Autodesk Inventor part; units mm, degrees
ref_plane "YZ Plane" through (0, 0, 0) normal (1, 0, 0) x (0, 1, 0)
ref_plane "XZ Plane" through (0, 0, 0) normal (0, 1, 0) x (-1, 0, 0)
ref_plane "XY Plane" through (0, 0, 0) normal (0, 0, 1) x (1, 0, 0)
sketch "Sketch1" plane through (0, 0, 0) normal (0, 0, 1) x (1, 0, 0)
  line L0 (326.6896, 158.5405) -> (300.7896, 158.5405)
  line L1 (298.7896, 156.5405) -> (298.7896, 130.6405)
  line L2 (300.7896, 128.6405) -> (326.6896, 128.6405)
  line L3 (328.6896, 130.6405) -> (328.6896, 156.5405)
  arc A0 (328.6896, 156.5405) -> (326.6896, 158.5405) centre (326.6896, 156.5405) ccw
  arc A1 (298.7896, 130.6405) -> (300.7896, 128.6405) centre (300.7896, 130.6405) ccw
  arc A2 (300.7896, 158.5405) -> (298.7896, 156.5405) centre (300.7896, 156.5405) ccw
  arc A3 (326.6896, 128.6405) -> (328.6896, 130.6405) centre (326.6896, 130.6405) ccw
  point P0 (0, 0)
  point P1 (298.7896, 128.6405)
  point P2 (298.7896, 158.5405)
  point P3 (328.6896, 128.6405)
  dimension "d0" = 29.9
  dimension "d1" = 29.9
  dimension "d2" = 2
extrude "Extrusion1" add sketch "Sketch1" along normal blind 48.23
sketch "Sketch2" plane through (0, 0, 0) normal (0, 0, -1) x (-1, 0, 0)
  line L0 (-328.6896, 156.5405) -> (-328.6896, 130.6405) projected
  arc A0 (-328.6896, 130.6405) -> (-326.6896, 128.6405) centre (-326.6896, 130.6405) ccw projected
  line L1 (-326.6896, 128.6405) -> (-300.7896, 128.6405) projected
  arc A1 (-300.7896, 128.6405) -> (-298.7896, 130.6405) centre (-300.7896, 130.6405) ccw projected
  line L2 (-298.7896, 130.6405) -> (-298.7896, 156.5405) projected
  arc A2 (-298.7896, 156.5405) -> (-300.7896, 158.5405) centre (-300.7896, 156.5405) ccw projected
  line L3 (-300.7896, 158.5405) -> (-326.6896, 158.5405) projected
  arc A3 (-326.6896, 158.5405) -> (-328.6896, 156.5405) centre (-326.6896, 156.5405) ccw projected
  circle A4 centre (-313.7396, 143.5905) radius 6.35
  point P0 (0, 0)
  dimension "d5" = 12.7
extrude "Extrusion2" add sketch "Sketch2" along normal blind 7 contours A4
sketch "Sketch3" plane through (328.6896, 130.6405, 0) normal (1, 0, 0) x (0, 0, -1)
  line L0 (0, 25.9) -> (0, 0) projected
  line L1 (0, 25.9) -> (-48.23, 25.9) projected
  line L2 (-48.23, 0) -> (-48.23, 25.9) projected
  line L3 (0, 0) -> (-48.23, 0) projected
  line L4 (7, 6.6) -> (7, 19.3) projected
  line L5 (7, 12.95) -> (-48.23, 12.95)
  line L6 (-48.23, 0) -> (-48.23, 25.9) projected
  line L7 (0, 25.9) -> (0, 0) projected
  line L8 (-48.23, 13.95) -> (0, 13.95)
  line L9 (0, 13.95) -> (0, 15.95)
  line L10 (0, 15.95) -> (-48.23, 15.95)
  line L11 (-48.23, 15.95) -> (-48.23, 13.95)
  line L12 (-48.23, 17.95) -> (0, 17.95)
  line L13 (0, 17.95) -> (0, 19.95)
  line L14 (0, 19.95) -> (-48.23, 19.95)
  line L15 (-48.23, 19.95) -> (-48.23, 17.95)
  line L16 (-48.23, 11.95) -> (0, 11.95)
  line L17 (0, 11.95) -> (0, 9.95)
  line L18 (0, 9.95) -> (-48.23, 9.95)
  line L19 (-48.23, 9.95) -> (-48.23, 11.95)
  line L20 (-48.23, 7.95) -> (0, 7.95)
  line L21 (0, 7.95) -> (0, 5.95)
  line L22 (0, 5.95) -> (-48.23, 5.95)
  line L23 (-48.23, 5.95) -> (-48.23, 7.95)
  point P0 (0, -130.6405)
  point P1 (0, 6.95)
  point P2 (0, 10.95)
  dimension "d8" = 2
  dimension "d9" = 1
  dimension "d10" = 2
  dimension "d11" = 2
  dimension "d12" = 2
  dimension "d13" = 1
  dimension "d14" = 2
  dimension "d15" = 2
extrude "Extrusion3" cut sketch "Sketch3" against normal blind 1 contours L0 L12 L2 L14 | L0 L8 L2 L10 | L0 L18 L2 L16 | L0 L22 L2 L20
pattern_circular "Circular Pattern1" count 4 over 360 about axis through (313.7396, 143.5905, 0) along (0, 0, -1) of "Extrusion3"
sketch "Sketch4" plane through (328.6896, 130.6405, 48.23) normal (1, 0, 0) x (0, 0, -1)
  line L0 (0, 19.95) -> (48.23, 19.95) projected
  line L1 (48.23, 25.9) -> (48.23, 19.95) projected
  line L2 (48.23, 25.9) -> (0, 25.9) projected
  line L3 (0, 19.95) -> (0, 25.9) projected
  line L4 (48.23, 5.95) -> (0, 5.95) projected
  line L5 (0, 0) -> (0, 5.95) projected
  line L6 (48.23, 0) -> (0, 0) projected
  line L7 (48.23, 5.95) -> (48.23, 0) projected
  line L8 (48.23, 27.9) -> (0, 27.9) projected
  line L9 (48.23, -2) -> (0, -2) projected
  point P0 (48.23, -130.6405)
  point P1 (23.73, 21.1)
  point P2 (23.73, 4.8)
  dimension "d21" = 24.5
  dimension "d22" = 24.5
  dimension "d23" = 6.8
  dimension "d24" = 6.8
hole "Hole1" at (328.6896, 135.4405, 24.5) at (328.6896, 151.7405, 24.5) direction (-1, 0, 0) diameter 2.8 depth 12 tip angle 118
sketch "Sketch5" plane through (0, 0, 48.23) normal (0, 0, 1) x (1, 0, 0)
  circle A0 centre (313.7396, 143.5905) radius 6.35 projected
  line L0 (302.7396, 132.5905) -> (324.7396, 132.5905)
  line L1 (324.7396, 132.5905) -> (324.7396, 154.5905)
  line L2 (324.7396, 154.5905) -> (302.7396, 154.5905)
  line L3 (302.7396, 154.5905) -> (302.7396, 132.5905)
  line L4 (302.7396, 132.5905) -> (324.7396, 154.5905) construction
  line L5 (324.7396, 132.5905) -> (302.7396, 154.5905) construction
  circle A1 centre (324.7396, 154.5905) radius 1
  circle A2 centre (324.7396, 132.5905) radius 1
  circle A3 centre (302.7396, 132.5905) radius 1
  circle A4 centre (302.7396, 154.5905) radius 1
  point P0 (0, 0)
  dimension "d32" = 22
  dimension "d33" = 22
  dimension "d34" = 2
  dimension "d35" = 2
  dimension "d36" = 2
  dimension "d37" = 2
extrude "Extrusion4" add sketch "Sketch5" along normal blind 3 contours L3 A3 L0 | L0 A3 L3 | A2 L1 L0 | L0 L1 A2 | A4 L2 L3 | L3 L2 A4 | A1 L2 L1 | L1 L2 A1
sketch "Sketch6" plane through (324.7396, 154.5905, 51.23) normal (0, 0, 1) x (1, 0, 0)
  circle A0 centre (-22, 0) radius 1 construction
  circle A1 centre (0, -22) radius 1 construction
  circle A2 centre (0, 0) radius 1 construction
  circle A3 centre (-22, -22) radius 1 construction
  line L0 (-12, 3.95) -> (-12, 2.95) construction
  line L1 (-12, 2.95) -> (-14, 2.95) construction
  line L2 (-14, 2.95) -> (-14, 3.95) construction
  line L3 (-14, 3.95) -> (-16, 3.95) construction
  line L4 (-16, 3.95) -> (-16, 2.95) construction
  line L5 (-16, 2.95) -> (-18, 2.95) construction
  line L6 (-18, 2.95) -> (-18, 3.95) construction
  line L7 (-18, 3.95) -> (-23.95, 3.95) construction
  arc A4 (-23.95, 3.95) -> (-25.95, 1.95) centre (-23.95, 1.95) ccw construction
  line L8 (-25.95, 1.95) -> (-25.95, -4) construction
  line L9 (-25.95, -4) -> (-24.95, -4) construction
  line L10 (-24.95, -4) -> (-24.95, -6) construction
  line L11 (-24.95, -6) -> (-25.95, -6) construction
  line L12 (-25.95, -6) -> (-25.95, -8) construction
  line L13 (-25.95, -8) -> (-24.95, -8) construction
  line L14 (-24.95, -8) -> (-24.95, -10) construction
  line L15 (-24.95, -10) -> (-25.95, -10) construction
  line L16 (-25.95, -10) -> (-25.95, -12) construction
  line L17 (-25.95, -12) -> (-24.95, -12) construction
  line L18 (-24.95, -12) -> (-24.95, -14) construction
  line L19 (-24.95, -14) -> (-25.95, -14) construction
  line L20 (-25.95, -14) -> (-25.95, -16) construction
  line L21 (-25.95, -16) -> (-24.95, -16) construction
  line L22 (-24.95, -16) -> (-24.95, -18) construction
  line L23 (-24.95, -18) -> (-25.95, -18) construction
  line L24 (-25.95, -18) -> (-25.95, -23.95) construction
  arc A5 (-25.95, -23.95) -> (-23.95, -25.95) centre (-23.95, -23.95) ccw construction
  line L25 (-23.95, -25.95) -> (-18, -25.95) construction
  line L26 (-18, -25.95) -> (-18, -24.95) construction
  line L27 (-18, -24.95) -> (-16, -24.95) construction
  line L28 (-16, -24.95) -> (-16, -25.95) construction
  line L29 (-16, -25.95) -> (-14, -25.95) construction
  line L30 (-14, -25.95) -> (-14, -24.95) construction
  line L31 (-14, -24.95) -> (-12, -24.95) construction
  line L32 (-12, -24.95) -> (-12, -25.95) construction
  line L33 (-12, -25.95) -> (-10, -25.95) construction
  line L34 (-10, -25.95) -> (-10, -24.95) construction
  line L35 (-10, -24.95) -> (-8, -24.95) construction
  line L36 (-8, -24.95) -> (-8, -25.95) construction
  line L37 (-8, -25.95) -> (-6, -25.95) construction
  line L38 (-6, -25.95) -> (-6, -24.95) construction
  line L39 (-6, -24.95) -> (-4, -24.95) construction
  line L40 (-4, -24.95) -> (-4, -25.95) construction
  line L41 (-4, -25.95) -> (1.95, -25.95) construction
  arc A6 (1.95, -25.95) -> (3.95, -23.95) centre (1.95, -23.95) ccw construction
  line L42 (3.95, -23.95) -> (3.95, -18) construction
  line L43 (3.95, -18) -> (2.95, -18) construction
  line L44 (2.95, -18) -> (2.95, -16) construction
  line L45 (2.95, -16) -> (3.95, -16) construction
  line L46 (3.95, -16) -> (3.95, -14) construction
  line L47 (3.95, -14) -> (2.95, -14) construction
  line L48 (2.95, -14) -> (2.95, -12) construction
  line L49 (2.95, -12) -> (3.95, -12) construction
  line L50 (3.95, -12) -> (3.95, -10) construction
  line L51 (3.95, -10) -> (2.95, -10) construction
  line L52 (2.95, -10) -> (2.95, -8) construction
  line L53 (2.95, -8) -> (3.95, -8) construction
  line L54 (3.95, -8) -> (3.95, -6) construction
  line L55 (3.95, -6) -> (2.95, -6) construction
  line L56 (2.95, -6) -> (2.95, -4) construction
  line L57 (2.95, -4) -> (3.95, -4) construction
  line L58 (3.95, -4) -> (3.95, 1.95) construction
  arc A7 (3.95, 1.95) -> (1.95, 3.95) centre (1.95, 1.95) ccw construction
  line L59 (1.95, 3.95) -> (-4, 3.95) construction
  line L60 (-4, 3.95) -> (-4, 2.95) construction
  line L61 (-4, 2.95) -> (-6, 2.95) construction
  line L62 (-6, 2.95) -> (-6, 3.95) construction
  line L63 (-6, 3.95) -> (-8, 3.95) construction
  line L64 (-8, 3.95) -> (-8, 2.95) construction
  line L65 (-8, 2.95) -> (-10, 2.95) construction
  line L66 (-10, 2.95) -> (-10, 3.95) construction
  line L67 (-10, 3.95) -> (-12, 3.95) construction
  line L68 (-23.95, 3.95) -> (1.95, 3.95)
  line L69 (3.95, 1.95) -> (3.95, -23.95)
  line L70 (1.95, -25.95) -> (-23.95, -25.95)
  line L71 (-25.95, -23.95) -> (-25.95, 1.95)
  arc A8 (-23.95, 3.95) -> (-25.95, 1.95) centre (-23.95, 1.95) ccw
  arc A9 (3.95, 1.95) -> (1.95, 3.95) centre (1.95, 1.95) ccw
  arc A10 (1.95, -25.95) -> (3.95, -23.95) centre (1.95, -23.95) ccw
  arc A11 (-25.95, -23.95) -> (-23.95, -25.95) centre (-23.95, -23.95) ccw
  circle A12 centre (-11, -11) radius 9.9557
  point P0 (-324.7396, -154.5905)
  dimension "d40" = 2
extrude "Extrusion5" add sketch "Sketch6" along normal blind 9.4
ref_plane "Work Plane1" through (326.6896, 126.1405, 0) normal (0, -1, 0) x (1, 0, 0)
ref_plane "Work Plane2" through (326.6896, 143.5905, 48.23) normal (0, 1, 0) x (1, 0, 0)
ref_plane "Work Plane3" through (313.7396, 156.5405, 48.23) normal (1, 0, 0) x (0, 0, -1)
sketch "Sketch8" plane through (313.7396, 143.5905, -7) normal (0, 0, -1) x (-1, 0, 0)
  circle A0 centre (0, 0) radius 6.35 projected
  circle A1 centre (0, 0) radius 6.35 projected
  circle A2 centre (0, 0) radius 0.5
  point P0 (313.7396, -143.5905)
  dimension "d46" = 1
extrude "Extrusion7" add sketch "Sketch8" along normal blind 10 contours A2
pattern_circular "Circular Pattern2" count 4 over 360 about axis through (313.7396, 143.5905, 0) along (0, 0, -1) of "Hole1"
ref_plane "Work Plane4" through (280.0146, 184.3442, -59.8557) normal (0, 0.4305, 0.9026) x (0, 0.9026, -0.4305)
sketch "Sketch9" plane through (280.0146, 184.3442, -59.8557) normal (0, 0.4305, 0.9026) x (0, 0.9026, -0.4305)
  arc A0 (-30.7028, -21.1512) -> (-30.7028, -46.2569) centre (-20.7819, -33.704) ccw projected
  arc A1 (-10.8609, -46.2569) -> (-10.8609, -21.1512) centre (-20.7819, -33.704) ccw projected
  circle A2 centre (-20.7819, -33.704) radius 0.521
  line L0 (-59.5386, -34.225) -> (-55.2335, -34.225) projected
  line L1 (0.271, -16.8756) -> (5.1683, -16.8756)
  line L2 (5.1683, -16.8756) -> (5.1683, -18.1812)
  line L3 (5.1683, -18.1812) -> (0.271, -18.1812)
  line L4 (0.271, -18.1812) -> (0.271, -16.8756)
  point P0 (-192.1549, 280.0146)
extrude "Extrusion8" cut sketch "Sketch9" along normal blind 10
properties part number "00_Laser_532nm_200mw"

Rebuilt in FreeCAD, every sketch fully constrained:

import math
import FreeCAD as App
import Part
import Sketcher

V = App.Vector
Q = App.Units.Quantity

doc = App.newDocument("Part")
body = doc.addObject("PartDesign::Body", "Body")

sketch1 = body.newObject("Sketcher::SketchObject", "Sketch")
sketch1.AttachmentSupport = (doc.getObject("XY_Plane"), [""])
sketch1.MapMode = "FlatFace"
sketch1.addGeometry(Part.ArcOfCircle(Part.Circle(V(326.7, 156.5, 0), V(0, 0, 1), 2), math.radians(0), math.radians(90)), False)
sketch1.addGeometry(Part.LineSegment(V(326.7, 158.5, 0), V(300.8, 158.5, 0)), False)
sketch1.addGeometry(Part.ArcOfCircle(Part.Circle(V(300.8, 156.5, 0), V(0, 0, 1), 2), math.radians(90), math.radians(180)), False)
sketch1.addGeometry(Part.LineSegment(V(298.8, 156.5, 0), V(298.8, 130.6, 0)), False)
sketch1.addGeometry(Part.ArcOfCircle(Part.Circle(V(300.8, 130.6, 0), V(0, 0, 1), 2), math.radians(180), math.radians(270)), False)
sketch1.addGeometry(Part.LineSegment(V(300.8, 128.6, 0), V(326.7, 128.6, 0)), False)
sketch1.addGeometry(Part.ArcOfCircle(Part.Circle(V(326.7, 130.6, 0), V(0, 0, 1), 2), math.radians(-90), math.radians(0)), False)
sketch1.addGeometry(Part.LineSegment(V(328.7, 130.6, 0), V(328.7, 156.5, 0)), False)
sketch1.addConstraint(Sketcher.Constraint("Tangent", 0, 2, 1, 1))
sketch1.addConstraint(Sketcher.Constraint("Tangent", 1, 2, 2, 1))
sketch1.addConstraint(Sketcher.Constraint("Tangent", 2, 2, 3, 1))
sketch1.addConstraint(Sketcher.Constraint("Tangent", 3, 2, 4, 1))
sketch1.addConstraint(Sketcher.Constraint("Tangent", 4, 2, 5, 1))
sketch1.addConstraint(Sketcher.Constraint("Tangent", 5, 2, 6, 1))
sketch1.addConstraint(Sketcher.Constraint("Tangent", 6, 2, 7, 1))
sketch1.addConstraint(Sketcher.Constraint("Tangent", 7, 2, 0, 1))
sketch1.addConstraint(Sketcher.Constraint("Horizontal", 1))
sketch1.addConstraint(Sketcher.Constraint("Vertical", 3))
sketch1.addConstraint(Sketcher.Constraint("Horizontal", 5))
sketch1.addConstraint(Sketcher.Constraint("Vertical", 7))
sketch1.addConstraint(Sketcher.Constraint("Equal", 0, 2))
sketch1.addConstraint(Sketcher.Constraint("Equal", 2, 4))
sketch1.addConstraint(Sketcher.Constraint("Equal", 4, 6))
sketch1.addConstraint(Sketcher.Constraint("Equal", 5, 3))
sketch1.addConstraint(Sketcher.Constraint("Radius", 0, Q("2 mm")))
sketch1.addConstraint(Sketcher.Constraint("DistanceX", 1, 2, 1, 1, Q("25.9 mm")))
sketch1.addConstraint(Sketcher.Constraint("DistanceX", -1, 1, 0, 3, Q("326.6896 mm")))
sketch1.addConstraint(Sketcher.Constraint("DistanceY", -1, 1, 0, 3, Q("156.5405 mm")))
pad1 = body.newObject("PartDesign::Pad", "Pad")
pad1.Profile = sketch1
pad1.Length = 48.23

sketch2 = body.newObject("Sketcher::SketchObject", "Sketch001")
sketch2.AttachmentSupport = (doc.getObject("XY_Plane"), [""])
sketch2.MapMode = "FlatFace"
sketch2.addGeometry(Part.Circle(V(314, 144, 0), V(0, 0, 1), 6), False)
sketch2.addConstraint(Sketcher.Constraint("Diameter", 0, Q("12.7 mm")))
sketch2.addConstraint(Sketcher.Constraint("DistanceX", -1, 1, 0, 3, Q("313.7396 mm")))
sketch2.addConstraint(Sketcher.Constraint("DistanceY", -1, 1, 0, 3, Q("143.5905 mm")))
pad2 = body.newObject("PartDesign::Pad", "Pad001")
pad2.Profile = sketch2
pad2.Length = 7
pad2.Reversed = True

sketch3 = body.newObject("Sketcher::SketchObject", "Sketch002")
sketch3.AttachmentSupport = (doc.getObject("YZ_Plane"), [""])
sketch3.MapMode = "FlatFace"
sketch3.AttachmentOffset = App.Placement(V(0, 0, 328.6896), App.Rotation())
sketch3.addGeometry(Part.LineSegment(V(148.6, 0, 0), V(150.6, 0, 0)), False)
sketch3.addGeometry(Part.LineSegment(V(150.6, 0, 0), V(150.6, 48.2, 0)), False)
sketch3.addGeometry(Part.LineSegment(V(150.6, 48.2, 0), V(148.6, 48.2, 0)), False)
sketch3.addGeometry(Part.LineSegment(V(148.6, 48.2, 0), V(148.6, 0, 0)), False)
sketch3.addGeometry(Part.LineSegment(V(144.6, 0, 0), V(146.6, 0, 0)), False)
sketch3.addGeometry(Part.LineSegment(V(146.6, 0, 0), V(146.6, 48.2, 0)), False)
sketch3.addGeometry(Part.LineSegment(V(146.6, 48.2, 0), V(144.6, 48.2, 0)), False)
sketch3.addGeometry(Part.LineSegment(V(144.6, 48.2, 0), V(144.6, 0, 0)), False)
sketch3.addGeometry(Part.LineSegment(V(140.6, 0, 0), V(142.6, 0, 0)), False)
sketch3.addGeometry(Part.LineSegment(V(142.6, 0, 0), V(142.6, 48.2, 0)), False)
sketch3.addGeometry(Part.LineSegment(V(142.6, 48.2, 0), V(140.6, 48.2, 0)), False)
sketch3.addGeometry(Part.LineSegment(V(140.6, 48.2, 0), V(140.6, 0, 0)), False)
sketch3.addGeometry(Part.LineSegment(V(136.6, 0, 0), V(138.6, 0, 0)), False)
sketch3.addGeometry(Part.LineSegment(V(138.6, 0, 0), V(138.6, 48.2, 0)), False)
sketch3.addGeometry(Part.LineSegment(V(138.6, 48.2, 0), V(136.6, 48.2, 0)), False)
sketch3.addGeometry(Part.LineSegment(V(136.6, 48.2, 0), V(136.6, 0, 0)), False)
sketch3.addConstraint(Sketcher.Constraint("Coincident", 0, 2, 1, 1))
sketch3.addConstraint(Sketcher.Constraint("Coincident", 1, 2, 2, 1))
sketch3.addConstraint(Sketcher.Constraint("Coincident", 2, 2, 3, 1))
sketch3.addConstraint(Sketcher.Constraint("Coincident", 3, 2, 0, 1))
sketch3.addConstraint(Sketcher.Constraint("Coincident", 4, 2, 5, 1))
sketch3.addConstraint(Sketcher.Constraint("Coincident", 5, 2, 6, 1))
sketch3.addConstraint(Sketcher.Constraint("Coincident", 6, 2, 7, 1))
sketch3.addConstraint(Sketcher.Constraint("Coincident", 7, 2, 4, 1))
sketch3.addConstraint(Sketcher.Constraint("Coincident", 8, 2, 9, 1))
sketch3.addConstraint(Sketcher.Constraint("Coincident", 9, 2, 10, 1))
sketch3.addConstraint(Sketcher.Constraint("Coincident", 10, 2, 11, 1))
sketch3.addConstraint(Sketcher.Constraint("Coincident", 11, 2, 8, 1))
sketch3.addConstraint(Sketcher.Constraint("Coincident", 12, 2, 13, 1))
sketch3.addConstraint(Sketcher.Constraint("Coincident", 13, 2, 14, 1))
sketch3.addConstraint(Sketcher.Constraint("Coincident", 14, 2, 15, 1))
sketch3.addConstraint(Sketcher.Constraint("Coincident", 15, 2, 12, 1))
sketch3.addConstraint(Sketcher.Constraint("Horizontal", 0))
sketch3.addConstraint(Sketcher.Constraint("Vertical", 1))
sketch3.addConstraint(Sketcher.Constraint("Horizontal", 2))
sketch3.addConstraint(Sketcher.Constraint("Vertical", 3))
sketch3.addConstraint(Sketcher.Constraint("Horizontal", 4))
sketch3.addConstraint(Sketcher.Constraint("Vertical", 5))
sketch3.addConstraint(Sketcher.Constraint("Horizontal", 6))
sketch3.addConstraint(Sketcher.Constraint("Vertical", 7))
sketch3.addConstraint(Sketcher.Constraint("Horizontal", 8))
sketch3.addConstraint(Sketcher.Constraint("Vertical", 9))
sketch3.addConstraint(Sketcher.Constraint("Horizontal", 10))
sketch3.addConstraint(Sketcher.Constraint("Vertical", 11))
sketch3.addConstraint(Sketcher.Constraint("Horizontal", 12))
sketch3.addConstraint(Sketcher.Constraint("Vertical", 13))
sketch3.addConstraint(Sketcher.Constraint("Horizontal", 14))
sketch3.addConstraint(Sketcher.Constraint("Vertical", 15))
sketch3.addConstraint(Sketcher.Constraint("PointOnObject", 0, 2, -1))
sketch3.addConstraint(Sketcher.Constraint("PointOnObject", 4, 2, -1))
sketch3.addConstraint(Sketcher.Constraint("PointOnObject", 8, 2, -1))
sketch3.addConstraint(Sketcher.Constraint("PointOnObject", 12, 2, -1))
sketch3.addConstraint(Sketcher.Constraint("Horizontal", 2, 2, 5, 2))
sketch3.addConstraint(Sketcher.Constraint("Horizontal", 6, 2, 9, 2))
sketch3.addConstraint(Sketcher.Constraint("Horizontal", 10, 2, 13, 2))
sketch3.addConstraint(Sketcher.Constraint("Equal", 2, 4))
sketch3.addConstraint(Sketcher.Constraint("Equal", 6, 8))
sketch3.addConstraint(Sketcher.Constraint("Equal", 10, 12))
sketch3.addConstraint(Sketcher.Constraint("DistanceX", 0, 1, 0, 2, Q("2 mm")))
sketch3.addConstraint(Sketcher.Constraint("DistanceX", 4, 2, 3, 2, Q("2 mm")))
sketch3.addConstraint(Sketcher.Constraint("DistanceX", 8, 2, 7, 2, Q("2 mm")))
sketch3.addConstraint(Sketcher.Constraint("DistanceX", 12, 2, 11, 2, Q("2 mm")))
sketch3.addConstraint(Sketcher.Constraint("DistanceY", 1, 1, 1, 2, Q("48.23 mm")))
sketch3.addConstraint(Sketcher.Constraint("DistanceX", -1, 1, 0, 2, Q("150.5905 mm")))
pocket1 = body.newObject("PartDesign::Pocket", "Pocket")
pocket1.Profile = sketch3
pocket1.Length = 1
doc.recompute()

datumline = body.newObject("PartDesign::Line", "DatumLine")
datumline.Placement = App.Placement(V(313.7396, 143.5905, 0), App.Rotation(V(0, 0, 1), V(0, 0, 1)))
polarpattern = body.newObject("PartDesign::PolarPattern", "PolarPattern")
polarpattern.Originals = [pocket1]
polarpattern.Axis = (datumline, [""])
polarpattern.Angle = 360
polarpattern.Occurrences = 4
body.Tip = polarpattern

sketch4 = body.newObject("Sketcher::SketchObject", "Sketch003")
sketch4.AttachmentSupport = (doc.getObject("YZ_Plane"), [""])
sketch4.MapMode = "FlatFace"
sketch4.AttachmentOffset = App.Placement(V(0, 0, 328.6896), App.Rotation())
sketch4.addGeometry(Part.Circle(V(135.4, 24.5, 0), V(0, 0, 1), 1.4), False)
sketch4.addGeometry(Part.Circle(V(151.7, 24.5, 0), V(0, 0, 1), 1.4), False)
sketch4.addConstraint(Sketcher.Constraint("Equal", 0, 1))
sketch4.addConstraint(Sketcher.Constraint("Horizontal", 0, 3, 1, 3))
sketch4.addConstraint(Sketcher.Constraint("Diameter", 0, Q("2.8 mm")))
sketch4.addConstraint(Sketcher.Constraint("DistanceY", -1, 1, 0, 3, Q("24.5 mm")))
sketch4.addConstraint(Sketcher.Constraint("DistanceX", 0, 3, 1, 3, Q("16.3 mm")))
sketch4.addConstraint(Sketcher.Constraint("DistanceX", -1, 1, 0, 3, Q("135.4405 mm")))
doc.recompute()
hole = body.newObject("PartDesign::Hole", "Hole")
hole.Profile = sketch4
hole.ThreadType = "None"
hole.Diameter = 2.8
hole.DepthType = "Dimension"
hole.Depth = 12
hole.DrillPoint = "Angled"
hole.DrillPointAngle = 118

sketch5 = body.newObject("Sketcher::SketchObject", "Sketch004")
sketch5.AttachmentSupport = (doc.getObject("XY_Plane"), [""])
sketch5.MapMode = "FlatFace"
sketch5.AttachmentOffset = App.Placement(V(0, 0, 48.23), App.Rotation())
sketch5.addGeometry(Part.Circle(V(302.7, 132.6, 0), V(0, 0, 1), 1), False)
sketch5.addGeometry(Part.Circle(V(324.7, 132.6, 0), V(0, 0, 1), 1), False)
sketch5.addGeometry(Part.Circle(V(302.7, 154.6, 0), V(0, 0, 1), 1), False)
sketch5.addGeometry(Part.Circle(V(324.7, 154.6, 0), V(0, 0, 1), 1), False)
sketch5.addConstraint(Sketcher.Constraint("Equal", 0, 1))
sketch5.addConstraint(Sketcher.Constraint("Equal", 1, 2))
sketch5.addConstraint(Sketcher.Constraint("Equal", 2, 3))
sketch5.addConstraint(Sketcher.Constraint("Horizontal", 0, 3, 1, 3))
sketch5.addConstraint(Sketcher.Constraint("Horizontal", 2, 3, 3, 3))
sketch5.addConstraint(Sketcher.Constraint("Vertical", 0, 3, 2, 3))
sketch5.addConstraint(Sketcher.Constraint("Vertical", 1, 3, 3, 3))
sketch5.addConstraint(Sketcher.Constraint("Diameter", 0, Q("2 mm")))
sketch5.addConstraint(Sketcher.Constraint("DistanceX", 0, 3, 1, 3, Q("22 mm")))
sketch5.addConstraint(Sketcher.Constraint("DistanceY", 0, 3, 2, 3, Q("22 mm")))
sketch5.addConstraint(Sketcher.Constraint("DistanceX", -1, 1, 0, 3, Q("302.7396 mm")))
sketch5.addConstraint(Sketcher.Constraint("DistanceY", -1, 1, 0, 3, Q("132.5905 mm")))
pad3 = body.newObject("PartDesign::Pad", "Pad002")
pad3.Profile = sketch5
pad3.Length = 3

sketch6 = body.newObject("Sketcher::SketchObject", "Sketch005")
sketch6.AttachmentSupport = (doc.getObject("XY_Plane"), [""])
sketch6.MapMode = "FlatFace"
sketch6.AttachmentOffset = App.Placement(V(0, 0, 51.23), App.Rotation())
sketch6.addGeometry(Part.LineSegment(V(326.7, 158.5, 0), V(300.8, 158.5, 0)), False)
sketch6.addGeometry(Part.ArcOfCircle(Part.Circle(V(300.8, 156.5, 0), V(0, 0, 1), 2), math.radians(90), math.radians(180)), False)
sketch6.addGeometry(Part.LineSegment(V(298.8, 156.5, 0), V(298.8, 130.6, 0)), False)
sketch6.addGeometry(Part.ArcOfCircle(Part.Circle(V(300.8, 130.6, 0), V(0, 0, 1), 2), math.radians(180), math.radians(270)), False)
sketch6.addGeometry(Part.LineSegment(V(300.8, 128.6, 0), V(326.7, 128.6, 0)), False)
sketch6.addGeometry(Part.ArcOfCircle(Part.Circle(V(326.7, 130.6, 0), V(0, 0, 1), 2), math.radians(-90), math.radians(0)), False)
sketch6.addGeometry(Part.LineSegment(V(328.7, 130.6, 0), V(328.7, 156.5, 0)), False)
sketch6.addGeometry(Part.ArcOfCircle(Part.Circle(V(326.7, 156.5, 0), V(0, 0, 1), 2), math.radians(0), math.radians(90)), False)
sketch6.addGeometry(Part.Circle(V(313.7, 143.6, 0), V(0, 0, 1), 10), False)
sketch6.addConstraint(Sketcher.Constraint("Tangent", 0, 2, 1, 1))
sketch6.addConstraint(Sketcher.Constraint("Tangent", 1, 2, 2, 1))
sketch6.addConstraint(Sketcher.Constraint("Tangent", 2, 2, 3, 1))
sketch6.addConstraint(Sketcher.Constraint("Tangent", 3, 2, 4, 1))
sketch6.addConstraint(Sketcher.Constraint("Tangent", 4, 2, 5, 1))
sketch6.addConstraint(Sketcher.Constraint("Tangent", 5, 2, 6, 1))
sketch6.addConstraint(Sketcher.Constraint("Tangent", 6, 2, 7, 1))
sketch6.addConstraint(Sketcher.Constraint("Tangent", 7, 2, 0, 1))
sketch6.addConstraint(Sketcher.Constraint("Horizontal", 0))
sketch6.addConstraint(Sketcher.Constraint("Vertical", 2))
sketch6.addConstraint(Sketcher.Constraint("Horizontal", 4))
sketch6.addConstraint(Sketcher.Constraint("Vertical", 6))
sketch6.addConstraint(Sketcher.Constraint("Equal", 1, 3))
sketch6.addConstraint(Sketcher.Constraint("Equal", 3, 5))
sketch6.addConstraint(Sketcher.Constraint("Equal", 5, 7))
sketch6.addConstraint(Sketcher.Constraint("Equal", 4, 2))
sketch6.addConstraint(Sketcher.Constraint("Radius", 1, Q("2 mm")))
sketch6.addConstraint(Sketcher.Constraint("DistanceX", 0, 2, 0, 1, Q("25.9 mm")))
sketch6.addConstraint(Sketcher.Constraint("Diameter", 8, Q("19.9114 mm")))
sketch6.addConstraint(Sketcher.Constraint("DistanceX", 3, 3, 8, 3, Q("12.95 mm")))
sketch6.addConstraint(Sketcher.Constraint("DistanceY", 3, 3, 8, 3, Q("12.95 mm")))
sketch6.addConstraint(Sketcher.Constraint("DistanceX", -1, 1, 1, 3, Q("300.7896 mm")))
sketch6.addConstraint(Sketcher.Constraint("DistanceY", -1, 1, 1, 3, Q("156.5405 mm")))
pad4 = body.newObject("PartDesign::Pad", "Pad003")
pad4.Profile = sketch6
pad4.Length = 9.4

sketch7 = body.newObject("Sketcher::SketchObject", "Sketch006")
sketch7.AttachmentSupport = (doc.getObject("XY_Plane"), [""])
sketch7.MapMode = "FlatFace"
sketch7.AttachmentOffset = App.Placement(V(0, 0, -7), App.Rotation())
sketch7.addGeometry(Part.Circle(V(313.7, 143.6, 0), V(0, 0, 1), 0.5), False)
sketch7.addConstraint(Sketcher.Constraint("Diameter", 0, Q("1 mm")))
sketch7.addConstraint(Sketcher.Constraint("DistanceX", -1, 1, 0, 3, Q("313.7396 mm")))
sketch7.addConstraint(Sketcher.Constraint("DistanceY", -1, 1, 0, 3, Q("143.5905 mm")))
pad5 = body.newObject("PartDesign::Pad", "Pad004")
pad5.Profile = sketch7
pad5.Length = 10
pad5.Reversed = True
doc.recompute()

datumline2 = body.newObject("PartDesign::Line", "DatumLine001")
datumline2.Placement = App.Placement(V(313.7396, 143.5905, 0), App.Rotation(V(0, 0, 1), V(0, 0, 1)))
polarpattern2 = body.newObject("PartDesign::PolarPattern", "PolarPattern001")
polarpattern2.Originals = [hole]
polarpattern2.Axis = (datumline2, [""])
polarpattern2.Angle = 360
polarpattern2.Occurrences = 4
body.Tip = polarpattern2

sketch8 = body.newObject("Sketcher::SketchObject", "Sketch007")
sketch8.Placement = App.Placement(V(280.0146, 184.3442, -59.8557), App.Rotation(V(0, 0.902585284, -0.430511097), V(-1, 0, 0), V(0, 0.430511097, 0.902585284), "ZXY"))
sketch8.addGeometry(Part.Circle(V(-20.8, -33.7, 0), V(0, 0, 1), 0.5), False)
sketch8.addGeometry(Part.LineSegment(V(5.2, -16.9, 0), V(0.3, -16.9, 0)), False)
sketch8.addGeometry(Part.LineSegment(V(0.3, -16.9, 0), V(0.3, -18.2, 0)), False)
sketch8.addGeometry(Part.LineSegment(V(0.3, -18.2, 0), V(5.2, -18.2, 0)), False)
sketch8.addGeometry(Part.LineSegment(V(5.2, -18.2, 0), V(5.2, -16.9, 0)), False)
sketch8.addConstraint(Sketcher.Constraint("Coincident", 1, 2, 2, 1))
sketch8.addConstraint(Sketcher.Constraint("Coincident", 2, 2, 3, 1))
sketch8.addConstraint(Sketcher.Constraint("Coincident", 3, 2, 4, 1))
sketch8.addConstraint(Sketcher.Constraint("Coincident", 4, 2, 1, 1))
sketch8.addConstraint(Sketcher.Constraint("Horizontal", 1))
sketch8.addConstraint(Sketcher.Constraint("Vertical", 2))
sketch8.addConstraint(Sketcher.Constraint("Horizontal", 3))
sketch8.addConstraint(Sketcher.Constraint("Vertical", 4))
sketch8.addConstraint(Sketcher.Constraint("Diameter", 0, Q("1.042 mm")))
sketch8.addConstraint(Sketcher.Constraint("DistanceX", 1, 2, 1, 1, Q("4.8973 mm")))
sketch8.addConstraint(Sketcher.Constraint("DistanceY", 2, 2, 2, 1, Q("1.3056 mm")))
sketch8.addConstraint(Sketcher.Constraint("DistanceX", 0, 3, -1, 1, Q("20.782 mm")))
sketch8.addConstraint(Sketcher.Constraint("DistanceY", 0, 3, -1, 1, Q("33.704 mm")))
sketch8.addConstraint(Sketcher.Constraint("DistanceX", -1, 1, 1, 2, Q("0.271 mm")))
sketch8.addConstraint(Sketcher.Constraint("DistanceY", 1, 2, -1, 1, Q("16.8756 mm")))
pocket2 = body.newObject("PartDesign::Pocket", "Pocket001")
pocket2.Profile = sketch8
pocket2.Length = 10
pocket2.Reversed = True

doc.recompute()
